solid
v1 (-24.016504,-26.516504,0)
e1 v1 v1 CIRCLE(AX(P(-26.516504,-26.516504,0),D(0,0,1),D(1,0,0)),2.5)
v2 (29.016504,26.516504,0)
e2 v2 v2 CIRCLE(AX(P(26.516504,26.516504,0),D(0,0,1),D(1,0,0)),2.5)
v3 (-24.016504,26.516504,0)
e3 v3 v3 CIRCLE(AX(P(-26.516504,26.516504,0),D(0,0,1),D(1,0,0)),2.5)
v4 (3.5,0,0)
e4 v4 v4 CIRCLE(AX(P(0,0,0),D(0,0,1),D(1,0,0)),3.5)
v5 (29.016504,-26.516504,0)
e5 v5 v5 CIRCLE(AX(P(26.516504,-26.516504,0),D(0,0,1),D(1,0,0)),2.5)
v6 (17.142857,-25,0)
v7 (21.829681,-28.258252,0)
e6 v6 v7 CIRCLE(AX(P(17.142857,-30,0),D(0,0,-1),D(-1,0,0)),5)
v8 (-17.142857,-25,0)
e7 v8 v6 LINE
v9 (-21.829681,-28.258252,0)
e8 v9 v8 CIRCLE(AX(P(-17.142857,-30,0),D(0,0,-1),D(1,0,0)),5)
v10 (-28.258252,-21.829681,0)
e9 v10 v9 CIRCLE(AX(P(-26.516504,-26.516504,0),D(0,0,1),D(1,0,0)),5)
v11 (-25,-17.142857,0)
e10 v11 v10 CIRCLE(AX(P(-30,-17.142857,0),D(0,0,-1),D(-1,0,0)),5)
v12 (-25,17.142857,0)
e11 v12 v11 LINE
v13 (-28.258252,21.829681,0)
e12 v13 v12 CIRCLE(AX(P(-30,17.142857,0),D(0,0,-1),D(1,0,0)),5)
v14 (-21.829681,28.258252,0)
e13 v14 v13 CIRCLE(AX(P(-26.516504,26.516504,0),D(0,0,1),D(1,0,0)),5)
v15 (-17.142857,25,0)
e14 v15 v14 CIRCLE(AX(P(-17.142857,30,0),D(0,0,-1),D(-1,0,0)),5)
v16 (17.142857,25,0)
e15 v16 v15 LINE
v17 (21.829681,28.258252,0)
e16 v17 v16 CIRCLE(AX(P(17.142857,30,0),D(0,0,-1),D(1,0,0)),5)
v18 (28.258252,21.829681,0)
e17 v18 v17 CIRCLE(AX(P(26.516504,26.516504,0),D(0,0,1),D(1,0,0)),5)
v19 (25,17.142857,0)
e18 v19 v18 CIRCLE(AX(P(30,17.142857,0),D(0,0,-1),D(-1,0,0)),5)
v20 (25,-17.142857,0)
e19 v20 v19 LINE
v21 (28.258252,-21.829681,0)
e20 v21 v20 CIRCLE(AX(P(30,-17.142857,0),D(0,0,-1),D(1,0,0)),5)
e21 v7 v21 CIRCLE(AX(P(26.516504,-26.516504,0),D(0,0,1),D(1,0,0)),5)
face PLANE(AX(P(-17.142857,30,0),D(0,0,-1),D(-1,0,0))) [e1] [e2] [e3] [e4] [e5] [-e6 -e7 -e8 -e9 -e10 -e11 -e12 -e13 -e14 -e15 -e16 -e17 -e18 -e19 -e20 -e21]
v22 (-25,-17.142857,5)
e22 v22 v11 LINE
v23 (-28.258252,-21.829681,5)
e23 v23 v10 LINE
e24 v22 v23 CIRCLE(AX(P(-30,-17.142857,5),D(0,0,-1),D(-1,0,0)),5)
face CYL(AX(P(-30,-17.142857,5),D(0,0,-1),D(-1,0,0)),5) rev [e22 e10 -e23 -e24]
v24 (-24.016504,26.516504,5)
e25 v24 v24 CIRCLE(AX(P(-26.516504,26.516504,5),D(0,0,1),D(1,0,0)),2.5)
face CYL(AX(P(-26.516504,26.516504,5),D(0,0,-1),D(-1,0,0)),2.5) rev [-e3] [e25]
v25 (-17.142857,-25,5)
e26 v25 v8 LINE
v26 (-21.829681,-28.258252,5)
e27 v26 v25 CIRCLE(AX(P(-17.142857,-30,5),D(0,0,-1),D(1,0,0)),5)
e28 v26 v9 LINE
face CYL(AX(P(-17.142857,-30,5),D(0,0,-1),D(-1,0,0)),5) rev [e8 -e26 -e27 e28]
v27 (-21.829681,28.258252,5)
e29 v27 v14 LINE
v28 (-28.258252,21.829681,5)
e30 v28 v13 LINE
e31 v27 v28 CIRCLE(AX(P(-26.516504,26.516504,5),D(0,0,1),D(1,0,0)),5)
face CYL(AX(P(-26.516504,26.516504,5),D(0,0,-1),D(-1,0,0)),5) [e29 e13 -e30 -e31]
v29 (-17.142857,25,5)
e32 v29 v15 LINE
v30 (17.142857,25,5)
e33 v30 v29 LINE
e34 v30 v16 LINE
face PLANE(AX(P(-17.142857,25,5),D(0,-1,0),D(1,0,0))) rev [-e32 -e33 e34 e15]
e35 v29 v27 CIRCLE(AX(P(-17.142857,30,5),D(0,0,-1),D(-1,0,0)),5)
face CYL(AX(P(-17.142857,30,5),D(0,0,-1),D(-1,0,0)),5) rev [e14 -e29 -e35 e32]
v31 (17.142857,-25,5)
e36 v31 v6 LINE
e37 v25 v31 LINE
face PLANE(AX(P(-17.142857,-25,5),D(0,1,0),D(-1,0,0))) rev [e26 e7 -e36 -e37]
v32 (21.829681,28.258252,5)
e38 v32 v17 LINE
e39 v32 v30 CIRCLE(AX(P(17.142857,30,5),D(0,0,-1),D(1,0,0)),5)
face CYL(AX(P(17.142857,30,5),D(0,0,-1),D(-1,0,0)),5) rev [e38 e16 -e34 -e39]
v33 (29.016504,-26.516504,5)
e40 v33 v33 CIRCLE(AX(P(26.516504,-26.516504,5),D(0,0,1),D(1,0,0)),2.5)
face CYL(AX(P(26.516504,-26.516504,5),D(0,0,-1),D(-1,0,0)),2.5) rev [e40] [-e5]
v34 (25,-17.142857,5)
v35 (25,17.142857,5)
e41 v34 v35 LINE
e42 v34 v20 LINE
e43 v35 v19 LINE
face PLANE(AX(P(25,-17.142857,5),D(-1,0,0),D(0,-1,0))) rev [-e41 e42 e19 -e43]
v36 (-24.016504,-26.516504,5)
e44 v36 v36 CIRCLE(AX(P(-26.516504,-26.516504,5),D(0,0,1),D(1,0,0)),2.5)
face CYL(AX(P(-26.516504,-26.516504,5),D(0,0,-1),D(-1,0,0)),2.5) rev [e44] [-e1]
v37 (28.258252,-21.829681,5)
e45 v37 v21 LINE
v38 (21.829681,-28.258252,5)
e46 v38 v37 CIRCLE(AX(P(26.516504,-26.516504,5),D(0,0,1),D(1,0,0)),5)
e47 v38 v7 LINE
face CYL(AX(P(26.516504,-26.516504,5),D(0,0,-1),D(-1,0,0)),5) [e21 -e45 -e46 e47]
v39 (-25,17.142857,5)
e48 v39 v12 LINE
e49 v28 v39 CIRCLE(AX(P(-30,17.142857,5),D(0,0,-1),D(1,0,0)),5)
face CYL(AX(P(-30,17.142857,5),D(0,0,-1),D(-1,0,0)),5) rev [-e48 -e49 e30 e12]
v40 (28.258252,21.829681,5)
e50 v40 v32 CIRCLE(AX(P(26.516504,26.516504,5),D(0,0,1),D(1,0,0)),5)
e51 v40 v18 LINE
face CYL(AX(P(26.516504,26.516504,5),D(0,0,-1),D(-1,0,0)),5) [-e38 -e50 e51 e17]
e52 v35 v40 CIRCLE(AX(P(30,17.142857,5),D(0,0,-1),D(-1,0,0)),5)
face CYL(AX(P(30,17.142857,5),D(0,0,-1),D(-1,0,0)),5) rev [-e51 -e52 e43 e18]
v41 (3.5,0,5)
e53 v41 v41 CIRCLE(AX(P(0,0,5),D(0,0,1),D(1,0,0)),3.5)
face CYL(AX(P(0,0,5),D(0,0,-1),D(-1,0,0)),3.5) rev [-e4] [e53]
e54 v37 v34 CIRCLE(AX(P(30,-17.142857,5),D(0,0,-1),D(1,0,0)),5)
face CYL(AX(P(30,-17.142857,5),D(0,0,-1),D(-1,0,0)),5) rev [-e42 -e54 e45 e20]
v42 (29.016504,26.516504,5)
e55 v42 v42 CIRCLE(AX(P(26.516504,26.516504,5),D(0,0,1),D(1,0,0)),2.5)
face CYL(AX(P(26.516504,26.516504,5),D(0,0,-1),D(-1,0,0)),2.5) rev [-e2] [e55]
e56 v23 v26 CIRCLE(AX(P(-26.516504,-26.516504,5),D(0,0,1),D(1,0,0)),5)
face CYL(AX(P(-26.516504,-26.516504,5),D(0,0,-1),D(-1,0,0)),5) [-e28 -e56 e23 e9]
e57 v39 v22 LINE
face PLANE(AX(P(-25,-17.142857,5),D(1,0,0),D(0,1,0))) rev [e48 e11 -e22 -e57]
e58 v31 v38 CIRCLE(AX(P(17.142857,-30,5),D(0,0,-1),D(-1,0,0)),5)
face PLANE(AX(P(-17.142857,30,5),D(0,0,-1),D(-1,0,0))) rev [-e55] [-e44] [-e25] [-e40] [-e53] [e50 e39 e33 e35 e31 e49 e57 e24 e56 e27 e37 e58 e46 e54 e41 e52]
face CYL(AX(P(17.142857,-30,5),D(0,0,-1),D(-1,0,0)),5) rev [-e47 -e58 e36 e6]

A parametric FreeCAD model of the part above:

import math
import FreeCAD as App
import Part
import Sketcher
Q = App.Units.Quantity

doc = App.newDocument("Part")
body = doc.addObject("PartDesign::Body", "Body")

sketch1 = doc.addObject("Sketcher::SketchObject", "Sketch")
body.addObject(sketch1)
sketch1.AttachmentSupport = (doc.XY_Plane, [""])
sketch1.MapMode = "FlatFace"
sketch1.addGeometry(Part.LineSegment(App.Vector(-17.142857, -25, 0), App.Vector(17.142857, -25, 0)), False)
sketch1.addGeometry(Part.ArcOfCircle(Part.Circle(App.Vector(17.142857, -30, 0), App.Vector(0, 0, 1), 5), math.radians(20.386401), math.radians(90)), False)
sketch1.addGeometry(Part.ArcOfCircle(Part.Circle(App.Vector(26.516504, -26.516504, 0), App.Vector(0, 0, 1), 5), math.radians(-159.613599), math.radians(69.613599)), False)
sketch1.addGeometry(Part.ArcOfCircle(Part.Circle(App.Vector(30, -17.142857, 0), App.Vector(0, 0, 1), 5), math.radians(180), math.radians(249.613599)), False)
sketch1.addGeometry(Part.LineSegment(App.Vector(25, -17.142857, 0), App.Vector(25, 17.142857, 0)), False)
sketch1.addGeometry(Part.ArcOfCircle(Part.Circle(App.Vector(30, 17.142857, 0), App.Vector(0, 0, 1), 5), math.radians(110.386401), math.radians(180)), False)
sketch1.addGeometry(Part.ArcOfCircle(Part.Circle(App.Vector(26.516504, 26.516504, 0), App.Vector(0, 0, 1), 5), math.radians(-69.613599), math.radians(159.613599)), False)
sketch1.addGeometry(Part.ArcOfCircle(Part.Circle(App.Vector(17.142857, 30, 0), App.Vector(0, 0, 1), 5), math.radians(-90), math.radians(-20.386401)), False)
sketch1.addGeometry(Part.LineSegment(App.Vector(17.142857, 25, 0), App.Vector(-17.142857, 25, 0)), False)
sketch1.addGeometry(Part.ArcOfCircle(Part.Circle(App.Vector(-17.142857, 30, 0), App.Vector(0, 0, 1), 5), math.radians(-159.613599), math.radians(-90)), False)
sketch1.addGeometry(Part.ArcOfCircle(Part.Circle(App.Vector(-26.516504, 26.516504, 0), App.Vector(0, 0, 1), 5), math.radians(20.386401), math.radians(249.613599)), False)
sketch1.addGeometry(Part.ArcOfCircle(Part.Circle(App.Vector(-30, 17.142857, 0), App.Vector(0, 0, 1), 5), math.radians(0), math.radians(69.613599)), False)
sketch1.addGeometry(Part.LineSegment(App.Vector(-25, 17.142857, 0), App.Vector(-25, -17.142857, 0)), False)
sketch1.addGeometry(Part.ArcOfCircle(Part.Circle(App.Vector(-30, -17.142857, 0), App.Vector(0, 0, 1), 5), math.radians(-69.613599), math.radians(0)), False)
sketch1.addGeometry(Part.ArcOfCircle(Part.Circle(App.Vector(-26.516504, -26.516504, 0), App.Vector(0, 0, 1), 5), math.radians(110.386401), math.radians(339.613599)), False)
sketch1.addGeometry(Part.ArcOfCircle(Part.Circle(App.Vector(-17.142857, -30, 0), App.Vector(0, 0, 1), 5), math.radians(90), math.radians(159.613599)), False)
sketch1.addGeometry(Part.Circle(App.Vector(-26.516504, -26.516504, 0), App.Vector(0, 0, 1), 2.5), False)
sketch1.addGeometry(Part.Circle(App.Vector(26.516504, -26.516504, 0), App.Vector(0, 0, 1), 2.5), False)
sketch1.addGeometry(Part.Circle(App.Vector(-26.516504, 26.516504, 0), App.Vector(0, 0, 1), 2.5), False)
sketch1.addGeometry(Part.Circle(App.Vector(0, 0, 0), App.Vector(0, 0, 1), 3.5), False)
sketch1.addGeometry(Part.Circle(App.Vector(26.516504, 26.516504, 0), App.Vector(0, 0, 1), 2.5), False)
sketch1.addConstraint(Sketcher.Constraint("Tangent", 0, 2, 1, 2))
sketch1.addConstraint(Sketcher.Constraint("Tangent", 1, 1, 2, 1))
sketch1.addConstraint(Sketcher.Constraint("Tangent", 2, 2, 3, 2))
sketch1.addConstraint(Sketcher.Constraint("Tangent", 3, 1, 4, 1))
sketch1.addConstraint(Sketcher.Constraint("Tangent", 4, 2, 5, 2))
sketch1.addConstraint(Sketcher.Constraint("Tangent", 5, 1, 6, 1))
sketch1.addConstraint(Sketcher.Constraint("Tangent", 6, 2, 7, 2))
sketch1.addConstraint(Sketcher.Constraint("Tangent", 7, 1, 8, 1))
sketch1.addConstraint(Sketcher.Constraint("Tangent", 8, 2, 9, 2))
sketch1.addConstraint(Sketcher.Constraint("Tangent", 9, 1, 10, 1))
sketch1.addConstraint(Sketcher.Constraint("Tangent", 10, 2, 11, 2))
sketch1.addConstraint(Sketcher.Constraint("Tangent", 11, 1, 12, 1))
sketch1.addConstraint(Sketcher.Constraint("Tangent", 12, 2, 13, 2))
sketch1.addConstraint(Sketcher.Constraint("Tangent", 13, 1, 14, 1))
sketch1.addConstraint(Sketcher.Constraint("Tangent", 14, 2, 15, 2))
sketch1.addConstraint(Sketcher.Constraint("Tangent", 15, 1, 0, 1))
sketch1.addConstraint(Sketcher.Constraint("Horizontal", 0))
sketch1.addConstraint(Sketcher.Constraint("Vertical", 4))
sketch1.addConstraint(Sketcher.Constraint("Horizontal", 8))
sketch1.addConstraint(Sketcher.Constraint("Vertical", 12))
sketch1.addConstraint(Sketcher.Constraint("Coincident", 19, 3, -1, 1))
sketch1.addConstraint(Sketcher.Constraint("Coincident", 16, 3, 14, 3))
sketch1.addConstraint(Sketcher.Constraint("Coincident", 17, 3, 2, 3))
sketch1.addConstraint(Sketcher.Constraint("Coincident", 18, 3, 10, 3))
sketch1.addConstraint(Sketcher.Constraint("Coincident", 20, 3, 6, 3))
sketch1.addConstraint(Sketcher.Constraint("Equal", 1, 2))
sketch1.addConstraint(Sketcher.Constraint("Equal", 2, 3))
sketch1.addConstraint(Sketcher.Constraint("Equal", 3, 5))
sketch1.addConstraint(Sketcher.Constraint("Equal", 5, 6))
sketch1.addConstraint(Sketcher.Constraint("Equal", 6, 7))
sketch1.addConstraint(Sketcher.Constraint("Equal", 7, 9))
sketch1.addConstraint(Sketcher.Constraint("Equal", 9, 10))
sketch1.addConstraint(Sketcher.Constraint("Equal", 10, 11))
sketch1.addConstraint(Sketcher.Constraint("Equal", 11, 13))
sketch1.addConstraint(Sketcher.Constraint("Equal", 13, 14))
sketch1.addConstraint(Sketcher.Constraint("Equal", 14, 15))
sketch1.addConstraint(Sketcher.Constraint("Equal", 16, 17))
sketch1.addConstraint(Sketcher.Constraint("Equal", 17, 18))
sketch1.addConstraint(Sketcher.Constraint("Equal", 18, 20))
sketch1.addConstraint(Sketcher.Constraint("Symmetric", 1, 3, 9, 3, -1, 1))
sketch1.addConstraint(Sketcher.Constraint("Symmetric", 3, 3, 11, 3, -1, 1))
sketch1.addConstraint(Sketcher.Constraint("Symmetric", 6, 3, 14, 3, -1, 1))
sketch1.addConstraint(Sketcher.Constraint("Symmetric", 6, 3, 10, 3, -2))
sketch1.addConstraint(Sketcher.Constraint("Equal", 8, 4))
sketch1.addConstraint(Sketcher.Constraint("Diameter", 16, Q("5 mm")))
sketch1.addConstraint(Sketcher.Constraint("Diameter", 19, Q("7 mm")))
sketch1.addConstraint(Sketcher.Constraint("Radius", 1, Q("5 mm")))
sketch1.addConstraint(Sketcher.Constraint("DistanceY", 1, 3, -1, 1, Q("30 mm")))
sketch1.addConstraint(Sketcher.Constraint("DistanceX", -1, 1, 3, 3, Q("30 mm")))
sketch1.addConstraint(Sketcher.Constraint("DistanceX", 0, 1, 0, 2, Q("34.285715 mm")))
pad1 = doc.addObject("PartDesign::Pad", "Pad")
body.addObject(pad1)
pad1.Profile = sketch1
pad1.Length = 5

doc.recompute()
